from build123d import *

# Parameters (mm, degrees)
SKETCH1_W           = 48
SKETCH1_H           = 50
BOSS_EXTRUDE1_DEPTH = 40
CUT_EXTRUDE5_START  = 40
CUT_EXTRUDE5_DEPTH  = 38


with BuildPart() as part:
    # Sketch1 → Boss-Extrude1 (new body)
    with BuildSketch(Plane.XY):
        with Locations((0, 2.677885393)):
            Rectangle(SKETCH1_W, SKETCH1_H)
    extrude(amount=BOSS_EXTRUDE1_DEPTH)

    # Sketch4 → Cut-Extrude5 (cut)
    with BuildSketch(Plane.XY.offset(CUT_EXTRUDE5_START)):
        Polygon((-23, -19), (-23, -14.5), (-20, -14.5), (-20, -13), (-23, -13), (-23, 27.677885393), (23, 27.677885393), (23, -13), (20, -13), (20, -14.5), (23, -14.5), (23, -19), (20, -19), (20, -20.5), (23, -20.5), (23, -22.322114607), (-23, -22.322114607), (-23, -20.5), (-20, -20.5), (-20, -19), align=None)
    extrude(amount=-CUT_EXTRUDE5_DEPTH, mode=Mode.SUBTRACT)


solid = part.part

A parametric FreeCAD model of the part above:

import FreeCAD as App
import Part
import Sketcher
from FreeCAD import Vector

doc = App.newDocument("Part")
body = doc.addObject("PartDesign::Body", "Body")

sketch1 = body.newObject("Sketcher::SketchObject", "Sketch")
sketch1.AttachmentSupport = (doc.getObject("XY_Plane"), [""])
sketch1.MapMode = "FlatFace"
sketch1.addGeometry([
    Part.LineSegment(Vector(-24, 27.677885, 0), Vector(-24, -22.322115, 0)),
    Part.LineSegment(Vector(-24, -22.322115, 0), Vector(24, -22.322115, 0)),
    Part.LineSegment(Vector(24, -22.322115, 0), Vector(24, 27.677885, 0)),
    Part.LineSegment(Vector(24, 27.677885, 0), Vector(-24, 27.677885, 0)),
], False)
sketch1.addConstraint([
    Sketcher.Constraint("Coincident", 0, 2, 1, 1),
    Sketcher.Constraint("Coincident", 1, 2, 2, 1),
    Sketcher.Constraint("Coincident", 2, 2, 3, 1),
    Sketcher.Constraint("Coincident", 3, 2, 0, 1),
    Sketcher.Constraint("Vertical", 0),
    Sketcher.Constraint("Horizontal", 1),
    Sketcher.Constraint("Vertical", 2),
    Sketcher.Constraint("Horizontal", 3),
    Sketcher.Constraint("DistanceX", 1, 1, 1, 2, 48.0),
    Sketcher.Constraint("DistanceY", 0, 2, 0, 1, 50.0),
    Sketcher.Constraint("DistanceX", 0, 2, -1, 1, 24.0),
    Sketcher.Constraint("DistanceY", 0, 2, -1, 1, 22.322115),
])
pad1 = body.newObject("PartDesign::Pad", "Pad")
pad1.Profile = sketch1
pad1.Length = 40

sketch2 = body.newObject("Sketcher::SketchObject", "Sketch001")
sketch2.AttachmentSupport = (doc.getObject("XY_Plane"), [""])
sketch2.MapMode = "FlatFace"
sketch2.AttachmentOffset = App.Placement(Vector(0, 0, 40), App.Rotation())
sketch2.addGeometry([
    Part.LineSegment(Vector(-23, -14.5, 0), Vector(-23, -19, 0)),
    Part.LineSegment(Vector(-23, -19, 0), Vector(-20, -19, 0)),
    Part.LineSegment(Vector(-20, -19, 0), Vector(-20, -20.5, 0)),
    Part.LineSegment(Vector(-20, -20.5, 0), Vector(-23, -20.5, 0)),
    Part.LineSegment(Vector(-23, -20.5, 0), Vector(-23, -22.322115, 0)),
    Part.LineSegment(Vector(-23, -22.322115, 0), Vector(23, -22.322115, 0)),
    Part.LineSegment(Vector(23, -22.322115, 0), Vector(23, -20.5, 0)),
    Part.LineSegment(Vector(23, -20.5, 0), Vector(20, -20.5, 0)),
    Part.LineSegment(Vector(20, -20.5, 0), Vector(20, -19, 0)),
    Part.LineSegment(Vector(20, -19, 0), Vector(23, -19, 0)),
    Part.LineSegment(Vector(23, -19, 0), Vector(23, -14.5, 0)),
    Part.LineSegment(Vector(23, -14.5, 0), Vector(20, -14.5, 0)),
    Part.LineSegment(Vector(20, -14.5, 0), Vector(20, -13, 0)),
    Part.LineSegment(Vector(20, -13, 0), Vector(23, -13, 0)),
    Part.LineSegment(Vector(23, -13, 0), Vector(23, 27.677885, 0)),
    Part.LineSegment(Vector(23, 27.677885, 0), Vector(-23, 27.677885, 0)),
    Part.LineSegment(Vector(-23, 27.677885, 0), Vector(-23, -13, 0)),
    Part.LineSegment(Vector(-23, -13, 0), Vector(-20, -13, 0)),
    Part.LineSegment(Vector(-20, -13, 0), Vector(-20, -14.5, 0)),
    Part.LineSegment(Vector(-20, -14.5, 0), Vector(-23, -14.5, 0)),
], False)
sketch2.addConstraint([
    Sketcher.Constraint("Coincident", 0, 2, 1, 1),
    Sketcher.Constraint("Coincident", 1, 2, 2, 1),
    Sketcher.Constraint("Coincident", 2, 2, 3, 1),
    Sketcher.Constraint("Coincident", 3, 2, 4, 1),
    Sketcher.Constraint("Coincident", 4, 2, 5, 1),
    Sketcher.Constraint("Coincident", 5, 2, 6, 1),
    Sketcher.Constraint("Coincident", 6, 2, 7, 1),
    Sketcher.Constraint("Coincident", 7, 2, 8, 1),
    Sketcher.Constraint("Coincident", 8, 2, 9, 1),
    Sketcher.Constraint("Coincident", 9, 2, 10, 1),
    Sketcher.Constraint("Coincident", 10, 2, 11, 1),
    Sketcher.Constraint("Coincident", 11, 2, 12, 1),
    Sketcher.Constraint("Coincident", 12, 2, 13, 1),
    Sketcher.Constraint("Coincident", 13, 2, 14, 1),
    Sketcher.Constraint("Coincident", 14, 2, 15, 1),
    Sketcher.Constraint("Coincident", 15, 2, 16, 1),
    Sketcher.Constraint("Coincident", 16, 2, 17, 1),
    Sketcher.Constraint("Coincident", 17, 2, 18, 1),
    Sketcher.Constraint("Coincident", 18, 2, 19, 1),
    Sketcher.Constraint("Coincident", 19, 2, 0, 1),
    Sketcher.Constraint("Vertical", 0),
    Sketcher.Constraint("Horizontal", 1),
    Sketcher.Constraint("Vertical", 2),
    Sketcher.Constraint("Horizontal", 3),
    Sketcher.Constraint("Vertical", 4),
    Sketcher.Constraint("Horizontal", 5),
    Sketcher.Constraint("Vertical", 6),
    Sketcher.Constraint("Horizontal", 7),
    Sketcher.Constraint("Vertical", 8),
    Sketcher.Constraint("Horizontal", 9),
    Sketcher.Constraint("Vertical", 10),
    Sketcher.Constraint("Horizontal", 11),
    Sketcher.Constraint("Vertical", 12),
    Sketcher.Constraint("Horizontal", 13),
    Sketcher.Constraint("Vertical", 14),
    Sketcher.Constraint("Horizontal", 15),
    Sketcher.Constraint("Vertical", 16),
    Sketcher.Constraint("Horizontal", 17),
    Sketcher.Constraint("Vertical", 18),
    Sketcher.Constraint("Horizontal", 19),
    Sketcher.Constraint("Symmetric", 3, 2, 6, 2, -2),
    Sketcher.Constraint("Symmetric", 1, 2, 8, 2, -2),
    Sketcher.Constraint("Symmetric", 13, 2, 16, 2, -2),
    Sketcher.Constraint("Symmetric", 11, 2, 18, 2, -2),
    Sketcher.Constraint("Vertical", 0, 2, 3, 2),
    Sketcher.Constraint("Vertical", 6, 2, 9, 2),
    Sketcher.Constraint("Vertical", 8, 2, 11, 2),
    Sketcher.Constraint("Vertical", 10, 2, 13, 2),
    Sketcher.Constraint("Equal", 8, 12),
    Sketcher.Constraint("DistanceX", 1, 1, 1, 2, 3.0),
    Sketcher.Constraint("DistanceX", 5, 1, 5, 2, 46.0),
    Sketcher.Constraint("DistanceY", 0, 2, 0, 1, 4.5),
    Sketcher.Constraint("DistanceY", 2, 2, 2, 1, 1.5),
    Sketcher.Constraint("DistanceY", 0, 2, -1, 1, 19.0),
    Sketcher.Constraint("DistanceY", 4, 2, 4, 1, 1.822115),
    Sketcher.Constraint("DistanceY", 14, 1, 14, 2, 40.677885),
])
pocket1 = body.newObject("PartDesign::Pocket", "Pocket")
pocket1.Profile = sketch2
pocket1.Length = 38

doc.recompute()
